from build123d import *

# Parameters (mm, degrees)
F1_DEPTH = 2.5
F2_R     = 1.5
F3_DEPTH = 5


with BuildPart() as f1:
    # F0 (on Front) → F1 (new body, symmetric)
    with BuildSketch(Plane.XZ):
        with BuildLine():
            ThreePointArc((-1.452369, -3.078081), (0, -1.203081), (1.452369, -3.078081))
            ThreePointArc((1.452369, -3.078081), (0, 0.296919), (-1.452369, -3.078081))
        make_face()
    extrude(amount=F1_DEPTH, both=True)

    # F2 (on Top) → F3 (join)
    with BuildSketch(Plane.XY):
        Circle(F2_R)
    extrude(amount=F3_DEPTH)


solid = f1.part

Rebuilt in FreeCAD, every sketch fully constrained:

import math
import FreeCAD as App
import Part
import Sketcher

V = App.Vector

doc = App.newDocument("Part")
body = doc.addObject("PartDesign::Body", "Body")

# Sketch on XZ plane
sketch1 = doc.addObject("Sketcher::SketchObject", "Sketch")
body.addObject(sketch1)
sketch1.AttachmentSupport = (doc.XZ_Plane, [""])
sketch1.MapMode = "FlatFace"
sketch1.addGeometry([
    Part.ArcOfCircle(Part.Circle(V(0, -2.7, 0), V(0, 0, 1), 1.5), math.radians(-14), math.radians(194)),
    Part.ArcOfCircle(Part.Circle(V(0, -1.7, 0), V(0, 0, 1), 2), math.radians(-43), math.radians(223)),
], False)
sketch1.addConstraint([
    Sketcher.Constraint("Coincident", 0, 1, 1, 1),
    Sketcher.Constraint("Coincident", 1, 2, 0, 2),
    Sketcher.Constraint("Symmetric", 0, 1, 1, 2, -2),
    Sketcher.Constraint("Radius", 1, 2.0),
    Sketcher.Constraint("Radius", 0, 1.5),
    Sketcher.Constraint("DistanceY", 0, 3, 1, 3, 1.0),
    Sketcher.Constraint("DistanceY", 0, 3, -1, 1, 2.703081),
])
pad1 = doc.addObject("PartDesign::Pad", "Pad")
body.addObject(pad1)
pad1.Profile = sketch1
pad1.Length = 5
pad1.Midplane = True

# Sketch on XY plane
sketch2 = doc.addObject("Sketcher::SketchObject", "Sketch001")
body.addObject(sketch2)
sketch2.AttachmentSupport = (doc.XY_Plane, [""])
sketch2.MapMode = "FlatFace"
sketch2.addGeometry(Part.Circle(V(0, 0, 0), V(0, 0, 1), 1.5), False)
sketch2.addConstraint([
    Sketcher.Constraint("Coincident", 0, 3, -1, 1),
    Sketcher.Constraint("Diameter", 0, 3.0),
])
pad2 = doc.addObject("PartDesign::Pad", "Pad001")
body.addObject(pad2)
pad2.Profile = sketch2
pad2.Length = 5

doc.recompute()
